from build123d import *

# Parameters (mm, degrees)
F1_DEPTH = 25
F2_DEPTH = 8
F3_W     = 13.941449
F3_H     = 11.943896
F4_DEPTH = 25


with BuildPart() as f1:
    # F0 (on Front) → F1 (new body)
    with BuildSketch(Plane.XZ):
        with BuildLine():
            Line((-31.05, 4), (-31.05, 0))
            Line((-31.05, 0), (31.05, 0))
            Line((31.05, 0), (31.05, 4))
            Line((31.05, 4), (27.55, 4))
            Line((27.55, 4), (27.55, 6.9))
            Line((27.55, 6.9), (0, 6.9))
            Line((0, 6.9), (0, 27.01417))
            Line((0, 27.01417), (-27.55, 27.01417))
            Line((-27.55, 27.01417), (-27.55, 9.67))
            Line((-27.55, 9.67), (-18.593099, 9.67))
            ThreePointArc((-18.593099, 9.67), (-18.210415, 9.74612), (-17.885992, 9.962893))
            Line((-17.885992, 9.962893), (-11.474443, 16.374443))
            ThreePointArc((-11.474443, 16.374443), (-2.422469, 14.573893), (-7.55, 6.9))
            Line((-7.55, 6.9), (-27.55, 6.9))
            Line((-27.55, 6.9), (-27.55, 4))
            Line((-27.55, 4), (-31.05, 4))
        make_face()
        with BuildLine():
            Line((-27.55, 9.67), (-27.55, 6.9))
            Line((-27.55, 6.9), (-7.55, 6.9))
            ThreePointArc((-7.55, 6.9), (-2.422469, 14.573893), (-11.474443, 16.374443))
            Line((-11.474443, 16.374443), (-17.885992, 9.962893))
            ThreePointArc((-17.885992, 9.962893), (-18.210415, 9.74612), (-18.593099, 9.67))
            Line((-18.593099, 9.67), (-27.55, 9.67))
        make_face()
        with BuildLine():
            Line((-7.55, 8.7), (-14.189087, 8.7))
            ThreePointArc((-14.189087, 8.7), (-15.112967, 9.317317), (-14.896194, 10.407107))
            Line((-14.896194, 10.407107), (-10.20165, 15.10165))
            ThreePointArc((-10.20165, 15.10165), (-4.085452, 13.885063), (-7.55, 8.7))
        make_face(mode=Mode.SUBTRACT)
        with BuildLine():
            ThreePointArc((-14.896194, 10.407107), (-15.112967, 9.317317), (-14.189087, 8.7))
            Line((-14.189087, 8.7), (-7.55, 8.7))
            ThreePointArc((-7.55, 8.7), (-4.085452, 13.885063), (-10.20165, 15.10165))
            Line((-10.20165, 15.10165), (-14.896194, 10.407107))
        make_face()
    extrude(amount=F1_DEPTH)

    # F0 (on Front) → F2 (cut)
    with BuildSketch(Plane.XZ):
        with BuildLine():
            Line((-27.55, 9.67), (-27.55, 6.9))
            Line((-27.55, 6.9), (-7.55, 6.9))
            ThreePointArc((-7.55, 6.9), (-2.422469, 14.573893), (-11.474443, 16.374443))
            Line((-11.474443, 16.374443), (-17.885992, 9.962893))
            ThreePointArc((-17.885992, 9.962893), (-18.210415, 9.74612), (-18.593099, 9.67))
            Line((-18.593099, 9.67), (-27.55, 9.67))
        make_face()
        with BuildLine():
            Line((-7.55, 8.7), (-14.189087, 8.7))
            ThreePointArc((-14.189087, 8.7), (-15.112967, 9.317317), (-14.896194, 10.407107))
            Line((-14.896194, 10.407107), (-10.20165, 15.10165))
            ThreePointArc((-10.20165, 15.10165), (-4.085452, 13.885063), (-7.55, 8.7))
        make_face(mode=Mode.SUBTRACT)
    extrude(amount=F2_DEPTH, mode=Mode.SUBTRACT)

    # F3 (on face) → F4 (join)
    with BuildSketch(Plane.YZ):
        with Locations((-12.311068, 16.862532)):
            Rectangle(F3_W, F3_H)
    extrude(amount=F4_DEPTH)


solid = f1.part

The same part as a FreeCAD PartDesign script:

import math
import FreeCAD as App
import Part
import Sketcher
from FreeCAD import Vector
Q = App.Units.Quantity


def add_polygon(sketch, points):
    """Adds a closed chain of lines whose ends are joined by coincident constraints."""
    first, n = sketch.GeometryCount, len(points)
    for a, b in zip(points, points[1:] + points[:1]):
        sketch.addGeometry(Part.LineSegment(App.Vector(*a, 0), App.Vector(*b, 0)), False)
    for i in range(n):
        sketch.addConstraint(Sketcher.Constraint("Coincident", first + i, 2, first + (i + 1) % n, 1))

doc = App.newDocument("Part")
body = doc.addObject("PartDesign::Body", "Body")

sketch1 = body.newObject("Sketcher::SketchObject", "Sketch")
sketch1.AttachmentSupport = (doc.getObject("XZ_Plane"), [""])
sketch1.MapMode = "FlatFace"
add_polygon(sketch1, [(-31.1, 4), (-31.1, 0), (31.1, 0), (31.1, 4), (27.6, 4), (27.6, 6.9), (0, 6.9), (0, 27), (-27.6, 27), (-27.6, 4)])
sketch1.addConstraint(Sketcher.Constraint("Vertical", 0))
sketch1.addConstraint(Sketcher.Constraint("Horizontal", 1))
sketch1.addConstraint(Sketcher.Constraint("Vertical", 2))
sketch1.addConstraint(Sketcher.Constraint("Horizontal", 3))
sketch1.addConstraint(Sketcher.Constraint("Vertical", 4))
sketch1.addConstraint(Sketcher.Constraint("Horizontal", 5))
sketch1.addConstraint(Sketcher.Constraint("Vertical", 6))
sketch1.addConstraint(Sketcher.Constraint("Horizontal", 7))
sketch1.addConstraint(Sketcher.Constraint("Vertical", 8))
sketch1.addConstraint(Sketcher.Constraint("Horizontal", 9))
sketch1.addConstraint(Sketcher.Constraint("Symmetric", 0, 2, 1, 2, -1, 1))
sketch1.addConstraint(Sketcher.Constraint("Symmetric", 3, 2, 8, 2, -2))
sketch1.addConstraint(Sketcher.Constraint("PointOnObject", 5, 2, -2))
sketch1.addConstraint(Sketcher.Constraint("DistanceY", 0, 2, 0, 1, 4.0))
sketch1.addConstraint(Sketcher.Constraint("DistanceX", 1, 1, 1, 2, 62.1))
sketch1.addConstraint(Sketcher.Constraint("DistanceX", 3, 2, 3, 1, 3.5))
sketch1.addConstraint(Sketcher.Constraint("DistanceY", 4, 1, 4, 2, 2.9))
sketch1.addConstraint(Sketcher.Constraint("DistanceY", 6, 1, 6, 2, 20.11417))
pad1 = body.newObject("PartDesign::Pad", "Pad")
pad1.Profile = sketch1
pad1.Length = 25

sketch2 = body.newObject("Sketcher::SketchObject", "Sketch001")
sketch2.AttachmentSupport = (doc.getObject("XZ_Plane"), [""])
sketch2.MapMode = "FlatFace"
sketch2.addGeometry(Part.LineSegment(Vector(-27.6, 9.7, 0), Vector(-27.6, 6.9, 0)), False)
sketch2.addGeometry(Part.LineSegment(Vector(-27.6, 6.9, 0), Vector(-7.5, 6.9, 0)), False)
sketch2.addGeometry(Part.ArcOfCircle(Part.Circle(Vector(-7.6, 12.5, 0), Vector(0, 0, 1), 5.6), math.radians(-90), math.radians(135)), False)
sketch2.addGeometry(Part.LineSegment(Vector(-11.5, 16.4, 0), Vector(-17.9, 10, 0)), False)
sketch2.addGeometry(Part.ArcOfCircle(Part.Circle(Vector(-18.6, 10.7, 0), Vector(0, 0, 1), 1), math.radians(-90), math.radians(-45)), False)
sketch2.addGeometry(Part.LineSegment(Vector(-18.6, 9.7, 0), Vector(-27.6, 9.7, 0)), False)
sketch2.addGeometry(Part.ArcOfCircle(Part.Circle(Vector(-7.5, 12.4, 0), Vector(0, 0, 1), 3.7), math.radians(-90), math.radians(135)), False)
sketch2.addGeometry(Part.LineSegment(Vector(-7.5, 8.7, 0), Vector(-14.2, 8.7, 0)), False)
sketch2.addGeometry(Part.ArcOfCircle(Part.Circle(Vector(-14.2, 9.7, 0), Vector(0, 0, 1), 1), math.radians(135), math.radians(270)), False)
sketch2.addGeometry(Part.LineSegment(Vector(-14.9, 10.4, 0), Vector(-10.2, 15.1, 0)), False)
sketch2.addConstraint(Sketcher.Constraint("Coincident", 0, 2, 1, 1))
sketch2.addConstraint(Sketcher.Constraint("Tangent", 1, 2, 2, 1))
sketch2.addConstraint(Sketcher.Constraint("Tangent", 2, 2, 3, 1))
sketch2.addConstraint(Sketcher.Constraint("Coincident", 3, 2, 4, 2))
sketch2.addConstraint(Sketcher.Constraint("Coincident", 4, 1, 5, 1))
sketch2.addConstraint(Sketcher.Constraint("Coincident", 5, 2, 0, 1))
sketch2.addConstraint(Sketcher.Constraint("Tangent", 6, 1, 7, 1))
sketch2.addConstraint(Sketcher.Constraint("Tangent", 7, 2, 8, 2))
sketch2.addConstraint(Sketcher.Constraint("Tangent", 8, 1, 9, 1))
sketch2.addConstraint(Sketcher.Constraint("Tangent", 9, 2, 6, 2))
sketch2.addConstraint(Sketcher.Constraint("Vertical", 0))
sketch2.addConstraint(Sketcher.Constraint("Horizontal", 1))
sketch2.addConstraint(Sketcher.Constraint("Horizontal", 5))
sketch2.addConstraint(Sketcher.Constraint("Horizontal", 7))
sketch2.addConstraint(Sketcher.Constraint("Coincident", 6, 3, 2, 3))
sketch2.addConstraint(Sketcher.Constraint("Parallel", 3, 9))
sketch2.addConstraint(Sketcher.Constraint("Radius", 8, 1.0))
sketch2.addConstraint(Sketcher.Constraint("DistanceX", 1, 1, 1, 2, 20.0))
sketch2.addConstraint(Sketcher.Constraint("Angle", 3, Q("-134.999996 deg")))
sketch2.addConstraint(Sketcher.Constraint("Radius", 2, 5.55))
sketch2.addConstraint(Sketcher.Constraint("Radius", 6, 3.75))
sketch2.addConstraint(Sketcher.Constraint("DistanceY", 0, 2, 0, 1, 2.77))
sketch2.addConstraint(Sketcher.Constraint("DistanceY", -1, 1, 8, 3, 9.7))
sketch2.addConstraint(Sketcher.Constraint("DistanceX", 2, 3, -1, 1, 7.550001))
sketch2.addConstraint(Sketcher.Constraint("DistanceX", 5, 2, 5, 1, 8.956901))
sketch2.addConstraint(Sketcher.Constraint("Radius", 4, 0.999994))
sketch2.addConstraint(Sketcher.Constraint("Distance", 3, 9.0673))
pocket1 = body.newObject("PartDesign::Pocket", "Pocket")
pocket1.Profile = sketch2
pocket1.Length = 8
pocket1.Reversed = True

sketch3 = body.newObject("Sketcher::SketchObject", "Sketch002")
sketch3.AttachmentSupport = (doc.getObject("YZ_Plane"), [""])
sketch3.MapMode = "FlatFace"
add_polygon(sketch3, [(-19, 23), (-19, 11), (-5, 11), (-5, 23)])
sketch3.addConstraint(Sketcher.Constraint("Vertical", 0))
sketch3.addConstraint(Sketcher.Constraint("Horizontal", 1))
sketch3.addConstraint(Sketcher.Constraint("Vertical", 2))
sketch3.addConstraint(Sketcher.Constraint("Horizontal", 3))
sketch3.addConstraint(Sketcher.Constraint("DistanceX", 1, 1, 1, 2, 13.941449))
sketch3.addConstraint(Sketcher.Constraint("DistanceY", 0, 2, 0, 1, 11.943896))
sketch3.addConstraint(Sketcher.Constraint("DistanceY", -1, 1, 2, 2, 22.83448))
sketch3.addConstraint(Sketcher.Constraint("DistanceX", 0, 2, -1, 1, 19.281793))
pad2 = body.newObject("PartDesign::Pad", "Pad001")
pad2.Profile = sketch3
pad2.Length = 25

doc.recompute()
